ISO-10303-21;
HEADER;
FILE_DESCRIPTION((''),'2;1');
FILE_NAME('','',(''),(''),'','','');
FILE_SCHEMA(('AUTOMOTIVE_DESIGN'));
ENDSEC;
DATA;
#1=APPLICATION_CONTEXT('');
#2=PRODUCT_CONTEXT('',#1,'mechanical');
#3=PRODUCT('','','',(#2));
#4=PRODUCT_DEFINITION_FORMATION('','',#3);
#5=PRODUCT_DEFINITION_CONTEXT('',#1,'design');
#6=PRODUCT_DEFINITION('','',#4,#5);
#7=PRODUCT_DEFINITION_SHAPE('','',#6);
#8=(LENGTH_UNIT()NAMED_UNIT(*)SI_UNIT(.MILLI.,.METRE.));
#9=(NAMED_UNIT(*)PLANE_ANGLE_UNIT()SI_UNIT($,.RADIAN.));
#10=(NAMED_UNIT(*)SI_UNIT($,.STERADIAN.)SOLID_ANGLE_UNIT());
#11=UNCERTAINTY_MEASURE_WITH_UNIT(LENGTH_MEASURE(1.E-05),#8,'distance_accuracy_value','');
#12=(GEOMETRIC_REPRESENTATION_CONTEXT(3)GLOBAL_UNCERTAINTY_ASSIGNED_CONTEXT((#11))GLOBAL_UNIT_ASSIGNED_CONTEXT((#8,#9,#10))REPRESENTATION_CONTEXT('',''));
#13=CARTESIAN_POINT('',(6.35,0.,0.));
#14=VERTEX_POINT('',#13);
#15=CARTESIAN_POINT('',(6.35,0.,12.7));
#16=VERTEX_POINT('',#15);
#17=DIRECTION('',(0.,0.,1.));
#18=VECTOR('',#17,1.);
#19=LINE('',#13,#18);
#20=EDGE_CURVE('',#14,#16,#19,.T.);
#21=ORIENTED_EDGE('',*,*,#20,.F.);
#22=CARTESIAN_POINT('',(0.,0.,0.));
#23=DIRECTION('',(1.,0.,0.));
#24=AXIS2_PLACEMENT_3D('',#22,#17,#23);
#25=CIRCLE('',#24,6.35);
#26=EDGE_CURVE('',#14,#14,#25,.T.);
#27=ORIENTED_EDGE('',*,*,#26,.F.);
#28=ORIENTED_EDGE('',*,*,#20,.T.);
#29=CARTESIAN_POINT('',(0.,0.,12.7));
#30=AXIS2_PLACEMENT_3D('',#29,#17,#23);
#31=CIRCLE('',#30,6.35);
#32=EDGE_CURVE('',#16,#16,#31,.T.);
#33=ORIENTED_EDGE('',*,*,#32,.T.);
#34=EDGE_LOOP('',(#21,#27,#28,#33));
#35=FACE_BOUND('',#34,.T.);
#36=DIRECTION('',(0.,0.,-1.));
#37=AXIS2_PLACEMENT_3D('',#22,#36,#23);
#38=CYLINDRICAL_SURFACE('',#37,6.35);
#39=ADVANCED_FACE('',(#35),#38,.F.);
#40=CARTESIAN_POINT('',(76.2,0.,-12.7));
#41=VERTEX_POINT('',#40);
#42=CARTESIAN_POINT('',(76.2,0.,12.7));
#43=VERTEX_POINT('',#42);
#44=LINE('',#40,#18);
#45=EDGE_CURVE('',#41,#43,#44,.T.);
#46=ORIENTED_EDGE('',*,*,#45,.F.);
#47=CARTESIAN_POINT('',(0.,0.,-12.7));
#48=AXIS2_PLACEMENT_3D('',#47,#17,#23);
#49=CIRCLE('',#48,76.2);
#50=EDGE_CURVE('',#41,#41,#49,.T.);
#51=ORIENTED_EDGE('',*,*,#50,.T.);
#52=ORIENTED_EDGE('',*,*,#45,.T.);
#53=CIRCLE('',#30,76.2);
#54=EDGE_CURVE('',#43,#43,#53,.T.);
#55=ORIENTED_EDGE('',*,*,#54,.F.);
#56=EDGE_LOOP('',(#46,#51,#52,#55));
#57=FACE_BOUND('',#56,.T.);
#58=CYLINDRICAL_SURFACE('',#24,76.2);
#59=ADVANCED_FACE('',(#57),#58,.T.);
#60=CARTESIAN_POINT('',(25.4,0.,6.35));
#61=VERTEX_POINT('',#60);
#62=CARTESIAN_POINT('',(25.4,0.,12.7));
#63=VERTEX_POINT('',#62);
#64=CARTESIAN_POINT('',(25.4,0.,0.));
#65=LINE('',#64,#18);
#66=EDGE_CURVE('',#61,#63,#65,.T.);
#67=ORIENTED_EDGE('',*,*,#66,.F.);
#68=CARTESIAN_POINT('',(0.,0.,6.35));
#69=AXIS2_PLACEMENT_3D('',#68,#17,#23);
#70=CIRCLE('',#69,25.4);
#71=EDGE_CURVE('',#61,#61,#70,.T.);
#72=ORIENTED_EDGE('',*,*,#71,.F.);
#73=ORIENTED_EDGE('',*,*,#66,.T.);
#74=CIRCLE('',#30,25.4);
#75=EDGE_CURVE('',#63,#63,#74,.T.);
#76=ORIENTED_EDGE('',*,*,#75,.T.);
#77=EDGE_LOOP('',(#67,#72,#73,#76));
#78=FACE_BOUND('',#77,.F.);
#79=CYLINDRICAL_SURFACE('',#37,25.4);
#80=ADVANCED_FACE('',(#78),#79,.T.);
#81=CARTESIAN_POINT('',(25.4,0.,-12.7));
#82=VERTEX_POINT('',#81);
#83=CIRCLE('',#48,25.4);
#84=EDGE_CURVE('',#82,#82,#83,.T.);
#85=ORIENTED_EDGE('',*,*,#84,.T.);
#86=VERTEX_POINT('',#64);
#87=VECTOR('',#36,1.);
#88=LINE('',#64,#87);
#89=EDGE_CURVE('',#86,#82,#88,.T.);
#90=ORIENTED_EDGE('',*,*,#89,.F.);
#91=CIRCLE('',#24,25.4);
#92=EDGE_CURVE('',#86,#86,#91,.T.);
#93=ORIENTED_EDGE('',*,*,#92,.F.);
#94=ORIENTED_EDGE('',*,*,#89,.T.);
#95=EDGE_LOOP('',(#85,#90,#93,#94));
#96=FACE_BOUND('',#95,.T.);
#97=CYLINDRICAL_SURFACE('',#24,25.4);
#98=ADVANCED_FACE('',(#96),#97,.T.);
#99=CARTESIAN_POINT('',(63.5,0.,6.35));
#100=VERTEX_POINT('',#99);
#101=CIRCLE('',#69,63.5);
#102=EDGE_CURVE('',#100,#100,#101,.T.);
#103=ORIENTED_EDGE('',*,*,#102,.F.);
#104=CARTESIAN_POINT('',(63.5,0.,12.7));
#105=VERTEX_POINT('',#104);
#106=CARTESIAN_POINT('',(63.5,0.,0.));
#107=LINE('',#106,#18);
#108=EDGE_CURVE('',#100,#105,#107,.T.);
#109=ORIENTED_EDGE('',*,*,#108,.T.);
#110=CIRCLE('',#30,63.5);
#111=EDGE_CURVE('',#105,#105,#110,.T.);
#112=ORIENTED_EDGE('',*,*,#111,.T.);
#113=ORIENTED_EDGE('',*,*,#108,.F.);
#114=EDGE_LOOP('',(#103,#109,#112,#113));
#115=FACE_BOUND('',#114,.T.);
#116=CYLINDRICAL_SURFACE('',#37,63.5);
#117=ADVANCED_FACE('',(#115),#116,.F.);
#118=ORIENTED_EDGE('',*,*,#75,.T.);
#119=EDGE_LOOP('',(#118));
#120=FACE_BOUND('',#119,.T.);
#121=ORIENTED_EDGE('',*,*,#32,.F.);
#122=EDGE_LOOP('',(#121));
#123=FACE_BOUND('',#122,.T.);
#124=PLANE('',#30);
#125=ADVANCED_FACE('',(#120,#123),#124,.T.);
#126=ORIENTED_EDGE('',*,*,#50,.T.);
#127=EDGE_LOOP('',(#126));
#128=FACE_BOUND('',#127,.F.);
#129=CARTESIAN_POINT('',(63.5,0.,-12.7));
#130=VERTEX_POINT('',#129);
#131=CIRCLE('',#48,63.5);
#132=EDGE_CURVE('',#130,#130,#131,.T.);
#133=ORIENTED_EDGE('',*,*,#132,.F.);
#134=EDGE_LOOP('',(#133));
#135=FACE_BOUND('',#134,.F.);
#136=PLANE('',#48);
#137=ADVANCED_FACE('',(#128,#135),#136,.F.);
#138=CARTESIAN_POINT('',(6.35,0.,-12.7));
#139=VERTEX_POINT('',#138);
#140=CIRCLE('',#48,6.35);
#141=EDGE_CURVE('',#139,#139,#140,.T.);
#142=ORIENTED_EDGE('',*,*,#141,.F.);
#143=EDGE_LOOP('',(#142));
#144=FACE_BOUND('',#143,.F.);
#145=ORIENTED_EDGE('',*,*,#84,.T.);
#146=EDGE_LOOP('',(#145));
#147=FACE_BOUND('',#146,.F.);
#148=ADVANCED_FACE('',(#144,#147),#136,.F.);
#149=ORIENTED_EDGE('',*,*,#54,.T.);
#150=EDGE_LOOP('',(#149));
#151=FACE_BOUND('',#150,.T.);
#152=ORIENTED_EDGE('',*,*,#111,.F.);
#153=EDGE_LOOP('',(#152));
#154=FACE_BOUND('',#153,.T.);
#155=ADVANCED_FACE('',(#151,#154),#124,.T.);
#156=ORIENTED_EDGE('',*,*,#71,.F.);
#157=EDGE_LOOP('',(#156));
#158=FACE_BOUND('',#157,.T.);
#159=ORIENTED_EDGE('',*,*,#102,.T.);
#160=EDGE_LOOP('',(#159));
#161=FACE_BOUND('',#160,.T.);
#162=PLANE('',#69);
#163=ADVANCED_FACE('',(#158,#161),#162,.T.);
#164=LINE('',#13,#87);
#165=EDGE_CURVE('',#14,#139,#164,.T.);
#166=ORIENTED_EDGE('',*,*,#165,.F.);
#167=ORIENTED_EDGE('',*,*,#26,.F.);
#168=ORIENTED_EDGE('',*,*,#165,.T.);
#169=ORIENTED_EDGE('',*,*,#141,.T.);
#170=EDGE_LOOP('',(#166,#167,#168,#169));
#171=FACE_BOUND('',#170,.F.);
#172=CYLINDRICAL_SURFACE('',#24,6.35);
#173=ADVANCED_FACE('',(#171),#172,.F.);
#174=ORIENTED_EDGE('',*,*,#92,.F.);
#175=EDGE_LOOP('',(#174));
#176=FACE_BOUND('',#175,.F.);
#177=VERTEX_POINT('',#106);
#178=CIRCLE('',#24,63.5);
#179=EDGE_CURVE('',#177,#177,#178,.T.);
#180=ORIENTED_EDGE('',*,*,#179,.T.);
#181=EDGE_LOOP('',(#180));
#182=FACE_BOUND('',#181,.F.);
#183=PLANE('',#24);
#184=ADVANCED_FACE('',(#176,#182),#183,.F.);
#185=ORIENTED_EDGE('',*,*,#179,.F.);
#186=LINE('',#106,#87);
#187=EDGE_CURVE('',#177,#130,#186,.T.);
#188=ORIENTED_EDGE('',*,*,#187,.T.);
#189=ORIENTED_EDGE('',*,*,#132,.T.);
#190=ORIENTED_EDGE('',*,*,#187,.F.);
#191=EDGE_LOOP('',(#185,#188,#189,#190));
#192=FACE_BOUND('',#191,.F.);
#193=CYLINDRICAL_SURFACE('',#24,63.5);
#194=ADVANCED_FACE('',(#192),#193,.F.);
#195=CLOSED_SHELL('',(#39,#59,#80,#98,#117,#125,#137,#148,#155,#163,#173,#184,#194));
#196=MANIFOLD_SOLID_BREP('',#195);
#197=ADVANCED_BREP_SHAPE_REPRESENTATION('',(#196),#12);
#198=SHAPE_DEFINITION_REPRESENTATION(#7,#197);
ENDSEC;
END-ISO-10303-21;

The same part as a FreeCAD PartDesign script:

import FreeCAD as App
import Part
import Sketcher
from FreeCAD import Vector
Q = App.Units.Quantity

doc = App.newDocument("Part")
body = doc.addObject("PartDesign::Body", "Body")
body.AllowCompound = True

sketch1 = body.newObject("Sketcher::SketchObject", "Sketch")
sketch1.AttachmentSupport = (doc.getObject("XY_Plane"), [""])
sketch1.MapMode = "FlatFace"
sketch1.addGeometry([
    Part.Circle(Vector(0, 0, 0), Vector(0, 0, 1), 76),
    Part.Circle(Vector(0, 0, 0), Vector(0, 0, 1), 64),
    Part.Circle(Vector(0, 0, 0), Vector(0, 0, 1), 25),
    Part.Circle(Vector(0, 0, 0), Vector(0, 0, 1), 6),
], False)
sketch1.addConstraint([
    Sketcher.Constraint("Coincident", 0, 3, -1, 1),
    Sketcher.Constraint("Coincident", 1, 3, -1, 1),
    Sketcher.Constraint("Coincident", 2, 3, -1, 1),
    Sketcher.Constraint("Coincident", 3, 3, -1, 1),
    Sketcher.Constraint("Diameter", 0, Q("6 in")),
    Sketcher.Constraint("Diameter", 1, Q("5 in")),
    Sketcher.Constraint("Diameter", 2, Q("2 in")),
    Sketcher.Constraint("Diameter", 3, Q("0.5 in")),
])
pad1 = body.newObject("PartDesign::Pad", "Pad")
pad1.Profile = sketch1
pad1.Length = Q("1 in")
pad1.Midplane = True

sketch2 = body.newObject("Sketcher::SketchObject", "Sketch001")
sketch2.AttachmentSupport = (doc.getObject("XY_Plane"), [""])
sketch2.MapMode = "FlatFace"
sketch2.addGeometry([
    Part.Circle(Vector(0, 0, 0), Vector(0, 0, 1), 64),
    Part.Circle(Vector(0, 0, 0), Vector(0, 0, 1), 25),
], False)
sketch2.addConstraint([
    Sketcher.Constraint("Coincident", 0, 3, -1, 1),
    Sketcher.Constraint("Coincident", 1, 3, -1, 1),
    Sketcher.Constraint("Diameter", 0, Q("5 in")),
    Sketcher.Constraint("Diameter", 1, Q("2 in")),
])
pad2 = body.newObject("PartDesign::Pad", "Pad001")
pad2.Profile = sketch2
pad2.Length = Q("0.25 in")

doc.recompute()
